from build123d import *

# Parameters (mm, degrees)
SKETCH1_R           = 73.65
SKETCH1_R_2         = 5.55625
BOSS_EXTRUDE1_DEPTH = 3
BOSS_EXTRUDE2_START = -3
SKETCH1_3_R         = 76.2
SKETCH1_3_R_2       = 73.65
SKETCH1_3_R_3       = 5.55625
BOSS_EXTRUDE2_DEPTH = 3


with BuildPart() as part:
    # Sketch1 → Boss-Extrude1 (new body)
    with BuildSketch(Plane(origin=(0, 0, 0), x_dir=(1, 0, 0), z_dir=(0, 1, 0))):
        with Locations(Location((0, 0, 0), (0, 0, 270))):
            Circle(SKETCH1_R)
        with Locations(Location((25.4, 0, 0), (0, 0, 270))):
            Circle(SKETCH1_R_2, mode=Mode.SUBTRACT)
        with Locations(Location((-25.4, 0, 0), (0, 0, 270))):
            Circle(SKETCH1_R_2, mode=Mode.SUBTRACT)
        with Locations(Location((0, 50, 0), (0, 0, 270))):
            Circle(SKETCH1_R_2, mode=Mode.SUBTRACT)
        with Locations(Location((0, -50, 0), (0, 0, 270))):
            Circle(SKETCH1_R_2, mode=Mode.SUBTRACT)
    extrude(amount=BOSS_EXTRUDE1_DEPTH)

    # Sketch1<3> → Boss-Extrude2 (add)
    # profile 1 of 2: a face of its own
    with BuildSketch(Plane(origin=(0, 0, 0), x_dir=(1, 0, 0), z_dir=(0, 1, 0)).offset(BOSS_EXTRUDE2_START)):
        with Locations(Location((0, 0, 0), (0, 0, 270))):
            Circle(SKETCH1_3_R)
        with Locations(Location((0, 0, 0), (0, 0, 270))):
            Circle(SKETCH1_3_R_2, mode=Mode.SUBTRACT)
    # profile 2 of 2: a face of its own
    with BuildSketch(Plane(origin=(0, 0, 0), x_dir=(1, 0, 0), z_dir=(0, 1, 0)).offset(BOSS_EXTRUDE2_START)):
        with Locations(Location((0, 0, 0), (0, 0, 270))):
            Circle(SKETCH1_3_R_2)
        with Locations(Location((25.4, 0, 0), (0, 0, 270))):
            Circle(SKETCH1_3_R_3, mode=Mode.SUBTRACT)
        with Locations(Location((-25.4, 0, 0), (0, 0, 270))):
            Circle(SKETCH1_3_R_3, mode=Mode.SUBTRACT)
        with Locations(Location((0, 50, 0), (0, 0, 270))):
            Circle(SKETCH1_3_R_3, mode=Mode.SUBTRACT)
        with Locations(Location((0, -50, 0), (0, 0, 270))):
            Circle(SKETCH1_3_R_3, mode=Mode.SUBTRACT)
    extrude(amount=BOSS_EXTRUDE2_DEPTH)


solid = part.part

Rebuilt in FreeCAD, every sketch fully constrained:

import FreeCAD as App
import Part
import Sketcher

V = App.Vector
Q = App.Units.Quantity

doc = App.newDocument("Part")
body = doc.addObject("PartDesign::Body", "Body")

# Sketch on XZ plane
sketch1 = body.newObject("Sketcher::SketchObject", "Sketch")
sketch1.AttachmentSupport = (doc.getObject("XZ_Plane"), [""])
sketch1.MapMode = "FlatFace"
sketch1.addGeometry([
    Part.Circle(V(0, 0, 0), V(0, 0, 1), 74),  # 0
    Part.Circle(V(0, -50, 0), V(0, 0, 1), 6),  # 1
    Part.Circle(V(-25, 0, 0), V(0, 0, 1), 6),  # 2
    Part.Circle(V(25, 0, 0), V(0, 0, 1), 6),  # 3
    Part.Circle(V(0, 50, 0), V(0, 0, 1), 6),  # 4
], False)
sketch1.addConstraint([
    Sketcher.Constraint("Coincident", 0, 3, -1, 1),
    Sketcher.Constraint("Equal", 1, 2),
    Sketcher.Constraint("Equal", 2, 3),
    Sketcher.Constraint("Equal", 3, 4),
    Sketcher.Constraint("Symmetric", 2, 3, 3, 3, -1, 1),
    Sketcher.Constraint("Symmetric", 1, 3, 4, 3, -1, 1),
    Sketcher.Constraint("PointOnObject", 1, 3, -2),
    Sketcher.Constraint("PointOnObject", 2, 3, -1),
    Sketcher.Constraint("Diameter", 0, Q("147.3 mm")),
    Sketcher.Constraint("DistanceY", 1, 3, -1, 1, Q("50 mm")),
    Sketcher.Constraint("Diameter", 1, Q("11.1125 mm")),
    Sketcher.Constraint("DistanceX", 2, 3, -1, 1, Q("25.4 mm")),
])
pad1 = body.newObject("PartDesign::Pad", "Pad")
pad1.Profile = sketch1
pad1.Length = 3
pad1.Reversed = True

# Sketch on XZ plane
sketch2 = body.newObject("Sketcher::SketchObject", "Sketch001")
sketch2.AttachmentSupport = (doc.getObject("XZ_Plane"), [""])
sketch2.MapMode = "FlatFace"
sketch2.AttachmentOffset = App.Placement(V(0, 0, 3), App.Rotation())
sketch2.addGeometry([
    Part.Circle(V(0, 0, 0), V(0, 0, 1), 76),  # 0
    Part.Circle(V(0, 50, 0), V(0, 0, 1), 6),  # 1
    Part.Circle(V(0, -50, 0), V(0, 0, 1), 6),  # 2
    Part.Circle(V(-25, 0, 0), V(0, 0, 1), 6),  # 3
    Part.Circle(V(25, 0, 0), V(0, 0, 1), 6),  # 4
], False)
sketch2.addConstraint([
    Sketcher.Constraint("Coincident", 0, 3, -1, 1),
    Sketcher.Constraint("Equal", 1, 2),
    Sketcher.Constraint("Equal", 2, 3),
    Sketcher.Constraint("Equal", 3, 4),
    Sketcher.Constraint("Symmetric", 1, 3, 2, 3, -1, 1),
    Sketcher.Constraint("Symmetric", 3, 3, 4, 3, -1, 1),
    Sketcher.Constraint("PointOnObject", 1, 3, -2),
    Sketcher.Constraint("PointOnObject", 3, 3, -1),
    Sketcher.Constraint("Diameter", 0, Q("152.4 mm")),
    Sketcher.Constraint("DistanceY", -1, 1, 1, 3, Q("50 mm")),
    Sketcher.Constraint("Diameter", 1, Q("11.1125 mm")),
    Sketcher.Constraint("DistanceX", 3, 3, -1, 1, Q("25.4 mm")),
])
pad2 = body.newObject("PartDesign::Pad", "Pad001")
pad2.Profile = sketch2
pad2.Length = 3
pad2.Reversed = True

doc.recompute()
